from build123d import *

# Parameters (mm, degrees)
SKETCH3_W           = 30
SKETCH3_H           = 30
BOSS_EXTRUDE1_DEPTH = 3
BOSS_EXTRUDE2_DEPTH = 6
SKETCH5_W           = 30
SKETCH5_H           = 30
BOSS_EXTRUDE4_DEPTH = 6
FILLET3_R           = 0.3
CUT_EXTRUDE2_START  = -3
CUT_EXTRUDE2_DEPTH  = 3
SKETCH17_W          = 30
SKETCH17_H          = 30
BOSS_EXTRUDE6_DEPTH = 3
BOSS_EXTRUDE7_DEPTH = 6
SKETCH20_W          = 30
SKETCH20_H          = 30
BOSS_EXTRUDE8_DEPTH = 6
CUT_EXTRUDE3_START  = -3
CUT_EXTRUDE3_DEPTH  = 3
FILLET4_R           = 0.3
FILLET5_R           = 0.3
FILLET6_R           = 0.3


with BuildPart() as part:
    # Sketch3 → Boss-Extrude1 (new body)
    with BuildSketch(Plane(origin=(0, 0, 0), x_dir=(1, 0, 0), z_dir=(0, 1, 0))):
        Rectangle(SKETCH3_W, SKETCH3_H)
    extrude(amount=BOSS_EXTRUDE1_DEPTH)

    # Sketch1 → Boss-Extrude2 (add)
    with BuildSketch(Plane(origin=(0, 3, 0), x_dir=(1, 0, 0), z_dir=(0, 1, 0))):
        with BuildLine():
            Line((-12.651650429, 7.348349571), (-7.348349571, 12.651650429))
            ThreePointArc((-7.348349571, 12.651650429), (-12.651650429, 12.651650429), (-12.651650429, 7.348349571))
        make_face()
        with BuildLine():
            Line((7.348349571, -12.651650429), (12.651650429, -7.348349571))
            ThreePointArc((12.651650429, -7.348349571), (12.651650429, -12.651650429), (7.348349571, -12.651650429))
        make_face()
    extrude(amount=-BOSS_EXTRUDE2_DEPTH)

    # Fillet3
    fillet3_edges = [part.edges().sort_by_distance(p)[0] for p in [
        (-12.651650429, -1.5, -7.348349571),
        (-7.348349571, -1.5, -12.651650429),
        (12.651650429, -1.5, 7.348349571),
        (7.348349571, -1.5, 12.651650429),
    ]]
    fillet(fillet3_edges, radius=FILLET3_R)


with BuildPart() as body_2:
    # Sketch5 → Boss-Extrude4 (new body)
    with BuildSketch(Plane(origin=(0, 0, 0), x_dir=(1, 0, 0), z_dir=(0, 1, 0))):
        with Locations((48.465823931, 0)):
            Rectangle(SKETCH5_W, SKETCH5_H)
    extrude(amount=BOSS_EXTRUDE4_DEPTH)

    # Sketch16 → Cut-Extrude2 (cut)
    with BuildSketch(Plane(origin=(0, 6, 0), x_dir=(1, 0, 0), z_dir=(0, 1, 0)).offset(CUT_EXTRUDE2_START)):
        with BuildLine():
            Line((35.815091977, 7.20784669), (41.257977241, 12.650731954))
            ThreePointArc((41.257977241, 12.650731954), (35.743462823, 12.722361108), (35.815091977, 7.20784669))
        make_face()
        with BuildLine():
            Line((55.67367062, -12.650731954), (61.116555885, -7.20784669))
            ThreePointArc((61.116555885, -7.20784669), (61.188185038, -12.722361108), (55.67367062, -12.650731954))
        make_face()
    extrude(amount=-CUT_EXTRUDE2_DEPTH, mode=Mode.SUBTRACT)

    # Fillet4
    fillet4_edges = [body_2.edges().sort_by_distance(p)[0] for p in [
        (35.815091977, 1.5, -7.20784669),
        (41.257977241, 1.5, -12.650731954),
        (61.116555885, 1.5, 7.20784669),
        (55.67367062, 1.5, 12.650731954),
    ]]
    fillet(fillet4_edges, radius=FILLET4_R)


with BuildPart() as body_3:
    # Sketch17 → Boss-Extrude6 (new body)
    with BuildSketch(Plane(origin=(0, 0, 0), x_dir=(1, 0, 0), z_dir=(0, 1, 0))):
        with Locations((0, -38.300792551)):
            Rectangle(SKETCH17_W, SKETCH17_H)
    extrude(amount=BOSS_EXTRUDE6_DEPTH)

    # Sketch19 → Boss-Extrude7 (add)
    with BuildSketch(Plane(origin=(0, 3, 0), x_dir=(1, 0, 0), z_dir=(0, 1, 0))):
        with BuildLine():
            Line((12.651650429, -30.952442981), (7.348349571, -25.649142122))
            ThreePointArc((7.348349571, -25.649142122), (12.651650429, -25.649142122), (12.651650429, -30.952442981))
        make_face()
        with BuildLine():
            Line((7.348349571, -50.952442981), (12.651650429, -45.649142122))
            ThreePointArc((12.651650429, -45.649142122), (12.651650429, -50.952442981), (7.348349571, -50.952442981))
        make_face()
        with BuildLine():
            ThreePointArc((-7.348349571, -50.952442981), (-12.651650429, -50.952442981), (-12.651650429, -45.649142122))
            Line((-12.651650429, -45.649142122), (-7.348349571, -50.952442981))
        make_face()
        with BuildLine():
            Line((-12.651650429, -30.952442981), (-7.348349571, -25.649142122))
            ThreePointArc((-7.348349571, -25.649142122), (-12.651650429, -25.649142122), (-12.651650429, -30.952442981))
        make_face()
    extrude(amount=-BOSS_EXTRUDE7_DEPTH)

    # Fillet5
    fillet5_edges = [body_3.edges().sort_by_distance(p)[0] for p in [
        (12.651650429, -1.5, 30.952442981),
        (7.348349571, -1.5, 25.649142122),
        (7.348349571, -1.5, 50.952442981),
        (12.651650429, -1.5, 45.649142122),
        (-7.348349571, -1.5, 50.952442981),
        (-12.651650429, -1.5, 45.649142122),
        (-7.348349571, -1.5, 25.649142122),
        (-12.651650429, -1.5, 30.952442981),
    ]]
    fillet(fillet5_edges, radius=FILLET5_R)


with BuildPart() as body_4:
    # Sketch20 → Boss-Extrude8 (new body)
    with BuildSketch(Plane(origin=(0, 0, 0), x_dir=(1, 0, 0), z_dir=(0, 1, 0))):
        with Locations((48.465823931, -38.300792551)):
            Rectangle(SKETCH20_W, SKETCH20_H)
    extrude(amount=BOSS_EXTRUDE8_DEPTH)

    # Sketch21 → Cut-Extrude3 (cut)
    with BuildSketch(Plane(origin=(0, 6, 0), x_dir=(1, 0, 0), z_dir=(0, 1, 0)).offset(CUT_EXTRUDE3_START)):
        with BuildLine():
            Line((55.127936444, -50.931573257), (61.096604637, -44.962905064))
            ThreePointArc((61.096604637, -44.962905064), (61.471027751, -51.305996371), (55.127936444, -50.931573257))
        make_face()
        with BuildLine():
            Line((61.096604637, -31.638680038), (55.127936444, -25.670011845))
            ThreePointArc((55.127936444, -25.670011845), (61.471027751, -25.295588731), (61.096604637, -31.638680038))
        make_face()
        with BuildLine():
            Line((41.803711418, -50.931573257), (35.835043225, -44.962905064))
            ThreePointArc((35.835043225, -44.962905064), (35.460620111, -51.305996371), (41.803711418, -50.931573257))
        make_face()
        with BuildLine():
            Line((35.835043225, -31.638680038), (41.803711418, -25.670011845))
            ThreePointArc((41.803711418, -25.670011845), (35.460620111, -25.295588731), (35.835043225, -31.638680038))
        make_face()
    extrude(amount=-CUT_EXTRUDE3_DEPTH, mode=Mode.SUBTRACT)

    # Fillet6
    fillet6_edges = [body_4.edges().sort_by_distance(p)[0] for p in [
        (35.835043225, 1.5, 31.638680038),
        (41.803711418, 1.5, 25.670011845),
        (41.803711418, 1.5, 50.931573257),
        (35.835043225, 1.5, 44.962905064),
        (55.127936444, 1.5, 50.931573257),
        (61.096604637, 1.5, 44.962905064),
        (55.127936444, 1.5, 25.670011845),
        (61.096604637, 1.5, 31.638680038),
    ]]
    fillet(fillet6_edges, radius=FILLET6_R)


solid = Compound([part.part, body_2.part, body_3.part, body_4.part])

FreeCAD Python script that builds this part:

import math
import FreeCAD as App
import Part
import Sketcher

V = App.Vector
Q = App.Units.Quantity


def edges_at(feature, points):
    """Names of the edges that pass closest to the given points."""
    edges = feature.Shape.Edges
    near = lambda p: min(range(len(edges)), key=lambda i: edges[i].distToShape(Part.Vertex(*p))[0])
    return sorted({f"Edge{near(p) + 1}" for p in points})


def add_polygon(sketch, points):
    """Adds a closed chain of lines whose ends are joined by coincident constraints."""
    first, n = sketch.GeometryCount, len(points)
    for a, b in zip(points, points[1:] + points[:1]):
        sketch.addGeometry(Part.LineSegment(App.Vector(*a, 0), App.Vector(*b, 0)), False)
    for i in range(n):
        sketch.addConstraint(Sketcher.Constraint("Coincident", first + i, 2, first + (i + 1) % n, 1))

doc = App.newDocument("Part")
body = doc.addObject("PartDesign::Body", "Body")

# Sketch on XZ plane
sketch1 = body.newObject("Sketcher::SketchObject", "Sketch")
sketch1.AttachmentSupport = (doc.getObject("XZ_Plane"), [""])
sketch1.MapMode = "FlatFace"
add_polygon(sketch1, [(-15, -15), (-15, 15), (15, 15), (15, -15)])  # lines 0-3
sketch1.addConstraint([
    Sketcher.Constraint("Vertical", 0),
    Sketcher.Constraint("Horizontal", 1),
    Sketcher.Constraint("Vertical", 2),
    Sketcher.Constraint("Horizontal", 3),
    Sketcher.Constraint("Symmetric", 0, 2, 2, 2, -1, 1),
    Sketcher.Constraint("Equal", 3, 0),
    Sketcher.Constraint("DistanceX", 1, 1, 1, 2, 30.0),
])
pad1 = body.newObject("PartDesign::Pad", "Pad")
pad1.Profile = sketch1
pad1.Length = 3
pad1.Reversed = True

# Sketch on XZ plane
sketch2 = body.newObject("Sketcher::SketchObject", "Sketch001")
sketch2.AttachmentSupport = (doc.getObject("XZ_Plane"), [""])
sketch2.MapMode = "FlatFace"
sketch2.AttachmentOffset = App.Placement(V(0, 0, -3), App.Rotation())
sketch2.addGeometry([
    Part.LineSegment(V(-12.7, -7.3, 0), V(-7.3, -12.7, 0)),
    Part.ArcOfCircle(Part.Circle(V(-10, -10, 0), V(0, 0, 1), 3.7), math.radians(135), math.radians(315)),
    Part.LineSegment(V(12.7, 7.3, 0), V(7.3, 12.7, 0)),
    Part.ArcOfCircle(Part.Circle(V(10, 10, 0), V(0, 0, 1), 3.7), math.radians(-45), math.radians(135)),
], False)
sketch2.addConstraint([
    Sketcher.Constraint("Coincident", 0, 1, 1, 1),
    Sketcher.Constraint("Coincident", 1, 2, 0, 2),
    Sketcher.Constraint("Coincident", 2, 1, 3, 1),
    Sketcher.Constraint("Coincident", 3, 2, 2, 2),
    Sketcher.Constraint("Equal", 1, 3),
    Sketcher.Constraint("Symmetric", 1, 3, 3, 3, -1, 1),
    Sketcher.Constraint("Parallel", 0, 2),
    Sketcher.Constraint("Angle", 0, Q("-45 deg")),
    Sketcher.Constraint("Radius", 1, 3.75),
    Sketcher.Constraint("DistanceX", 1, 3, -1, 1, 10.0),
    Sketcher.Constraint("DistanceY", 1, 3, -1, 1, 10.0),
    Sketcher.Constraint("DistanceX", 1, 2, 2, 1, 20.0),
    Sketcher.Constraint("DistanceX", 0, 1, -1, 1, 12.65165),
])
pad2 = body.newObject("PartDesign::Pad", "Pad001")
pad2.Profile = sketch2
pad2.Length = 6
doc.recompute()

fillet = body.newObject("PartDesign::Fillet", "Fillet")
fillet.Base = (pad2, edges_at(pad2, [
    (-12.652, -1.5, -7.348),
    (-7.348, -1.5, -12.652),
    (12.652, -1.5, 7.348),
    (7.348, -1.5, 12.652),
]))
fillet.Radius = 0.3
body2 = doc.addObject("PartDesign::Body", "Body001")

# Sketch on XZ plane
sketch3 = body2.newObject("Sketcher::SketchObject", "Sketch002")
sketch3.AttachmentSupport = (doc.getObject("XZ_Plane001"), [""])
sketch3.MapMode = "FlatFace"
add_polygon(sketch3, [(33, -15), (33, 15), (63, 15), (63, -15)])  # lines 0-3
sketch3.addConstraint([
    Sketcher.Constraint("Vertical", 0),
    Sketcher.Constraint("Horizontal", 1),
    Sketcher.Constraint("Vertical", 2),
    Sketcher.Constraint("Horizontal", 3),
    Sketcher.Constraint("Equal", 3, 0),
    Sketcher.Constraint("DistanceX", 1, 1, 1, 2, 30.0),
    Sketcher.Constraint("DistanceY", -1, 1, 0, 2, 15.0),
    Sketcher.Constraint("DistanceX", -1, 1, 0, 2, 33.465824),
])
pad3 = body2.newObject("PartDesign::Pad", "Pad002")
pad3.Profile = sketch3
pad3.Length = 6
pad3.Reversed = True

# Sketch on XZ plane
sketch4 = body2.newObject("Sketcher::SketchObject", "Sketch003")
sketch4.AttachmentSupport = (doc.getObject("XZ_Plane001"), [""])
sketch4.MapMode = "FlatFace"
sketch4.AttachmentOffset = App.Placement(V(0, 0, -3), App.Rotation())
sketch4.addGeometry([
    Part.LineSegment(V(35.8, -7.2, 0), V(41.3, -12.7, 0)),
    Part.ArcOfCircle(Part.Circle(V(38.5, -10, 0), V(0, 0, 1), 3.9), math.radians(134), math.radians(316)),
    Part.LineSegment(V(61.1, 7.2, 0), V(55.7, 12.7, 0)),
    Part.ArcOfCircle(Part.Circle(V(58.5, 10, 0), V(0, 0, 1), 3.9), math.radians(-46), math.radians(136)),
], False)
sketch4.addConstraint([
    Sketcher.Constraint("Coincident", 0, 1, 1, 1),
    Sketcher.Constraint("Coincident", 1, 2, 0, 2),
    Sketcher.Constraint("Coincident", 2, 1, 3, 1),
    Sketcher.Constraint("Coincident", 3, 2, 2, 2),
    Sketcher.Constraint("Equal", 1, 3),
    Sketcher.Constraint("Parallel", 0, 2),
    Sketcher.Constraint("Equal", 0, 2),
    Sketcher.Constraint("Angle", 0, Q("-45 deg")),
    Sketcher.Constraint("Radius", 1, 3.85),
    Sketcher.Constraint("DistanceY", 1, 3, -1, 1, 10.0),
    Sketcher.Constraint("DistanceY", -1, 1, 3, 3, 10.0),
    Sketcher.Constraint("DistanceX", 1, 3, 3, 3, 20.0),
    Sketcher.Constraint("DistanceX", -1, 1, 0, 1, 35.815092),
    Sketcher.Constraint("DistanceY", 1, 2, -1, 1, 12.650732),
])
pocket1 = body2.newObject("PartDesign::Pocket", "Pocket")
pocket1.Profile = sketch4
pocket1.Length = 3
pocket1.Reversed = True
doc.recompute()

fillet2 = body2.newObject("PartDesign::Fillet", "Fillet001")
fillet2.Base = (pocket1, edges_at(pocket1, [
    (35.815, 1.5, -7.208),
    (41.258, 1.5, -12.651),
    (61.117, 1.5, 7.208),
    (55.674, 1.5, 12.651),
]))
fillet2.Radius = 0.3
body3 = doc.addObject("PartDesign::Body", "Body002")

# Sketch on XZ plane
sketch5 = body3.newObject("Sketcher::SketchObject", "Sketch004")
sketch5.AttachmentSupport = (doc.getObject("XZ_Plane002"), [""])
sketch5.MapMode = "FlatFace"
add_polygon(sketch5, [(-15, 23), (-15, 53), (15, 53), (15, 23)])  # lines 0-3
sketch5.addConstraint([
    Sketcher.Constraint("Vertical", 0),
    Sketcher.Constraint("Horizontal", 1),
    Sketcher.Constraint("Vertical", 2),
    Sketcher.Constraint("Horizontal", 3),
    Sketcher.Constraint("Equal", 3, 0),
    Sketcher.Constraint("DistanceX", 1, 1, 1, 2, 30.0),
    Sketcher.Constraint("DistanceX", 0, 2, -1, 1, 15.0),
    Sketcher.Constraint("DistanceY", -1, 1, 0, 2, 53.300793),
])
pad4 = body3.newObject("PartDesign::Pad", "Pad003")
pad4.Profile = sketch5
pad4.Length = 3
pad4.Reversed = True

# Sketch on XZ plane
sketch6 = body3.newObject("Sketcher::SketchObject", "Sketch005")
sketch6.AttachmentSupport = (doc.getObject("XZ_Plane002"), [""])
sketch6.MapMode = "FlatFace"
sketch6.AttachmentOffset = App.Placement(V(0, 0, -3), App.Rotation())
sketch6.addGeometry([
    Part.LineSegment(V(7.3, 25.6, 0), V(12.7, 31, 0)),  # 0
    Part.ArcOfCircle(Part.Circle(V(10, 28.3, 0), V(0, 0, 1), 3.8), math.radians(-135), math.radians(45)),  # 1
    Part.LineSegment(V(12.7, 45.6, 0), V(7.3, 51, 0)),  # 2
    Part.ArcOfCircle(Part.Circle(V(10, 48.3, 0), V(0, 0, 1), 3.8), math.radians(-45), math.radians(135)),  # 3
    Part.ArcOfCircle(Part.Circle(V(-10, 48.3, 0), V(0, 0, 1), 3.8), math.radians(45), math.radians(225)),  # 4
    Part.LineSegment(V(-7.3, 51, 0), V(-12.7, 45.6, 0)),  # 5
    Part.LineSegment(V(-12.7, 31, 0), V(-7.3, 25.6, 0)),  # 6
    Part.ArcOfCircle(Part.Circle(V(-10, 28.3, 0), V(0, 0, 1), 3.8), math.radians(135), math.radians(315)),  # 7
], False)
sketch6.addConstraint([
    Sketcher.Constraint("Coincident", 0, 1, 1, 1),
    Sketcher.Constraint("Coincident", 1, 2, 0, 2),
    Sketcher.Constraint("Coincident", 2, 1, 3, 1),
    Sketcher.Constraint("Coincident", 3, 2, 2, 2),
    Sketcher.Constraint("Coincident", 4, 1, 5, 1),
    Sketcher.Constraint("Coincident", 5, 2, 4, 2),
    Sketcher.Constraint("Coincident", 6, 1, 7, 1),
    Sketcher.Constraint("Coincident", 7, 2, 6, 2),
    Sketcher.Constraint("Equal", 1, 3),
    Sketcher.Constraint("Equal", 3, 4),
    Sketcher.Constraint("Equal", 4, 7),
    Sketcher.Constraint("Symmetric", 3, 3, 4, 3, -2),
    Sketcher.Constraint("Symmetric", 1, 3, 7, 3, -2),
    Sketcher.Constraint("Perpendicular", 0, 2),
    Sketcher.Constraint("Perpendicular", 2, 5),
    Sketcher.Constraint("Perpendicular", 5, 6),
    Sketcher.Constraint("Horizontal", 3, 2, 4, 1),
    Sketcher.Constraint("Horizontal", 2, 1, 5, 2),
    Sketcher.Constraint("Horizontal", 1, 2, 6, 1),
    Sketcher.Constraint("Vertical", 1, 3, 3, 3),
    Sketcher.Constraint("Vertical", 1, 2, 2, 1),
    Sketcher.Constraint("Radius", 1, 3.75),
    Sketcher.Constraint("DistanceX", -1, 1, 1, 3, 10.0),
    Sketcher.Constraint("DistanceY", 1, 3, 3, 3, 20.0),
    Sketcher.Constraint("DistanceY", 0, 1, 2, 1, 20.0),
    Sketcher.Constraint("DistanceY", -1, 1, 1, 3, 28.300793),
])
pad5 = body3.newObject("PartDesign::Pad", "Pad004")
pad5.Profile = sketch6
pad5.Length = 6
doc.recompute()

fillet3 = body3.newObject("PartDesign::Fillet", "Fillet002")
fillet3.Base = (pad5, edges_at(pad5, [
    (12.652, -1.5, 30.952),
    (7.348, -1.5, 25.649),
    (7.348, -1.5, 50.952),
    (12.652, -1.5, 45.649),
    (-7.348, -1.5, 50.952),
    (-12.652, -1.5, 45.649),
    (-7.348, -1.5, 25.649),
    (-12.652, -1.5, 30.952),
]))
fillet3.Radius = 0.3
body4 = doc.addObject("PartDesign::Body", "Body003")

# Sketch on XZ plane
sketch7 = body4.newObject("Sketcher::SketchObject", "Sketch006")
sketch7.AttachmentSupport = (doc.getObject("XZ_Plane003"), [""])
sketch7.MapMode = "FlatFace"
add_polygon(sketch7, [(33, 23), (33, 53), (63, 53), (63, 23)])  # lines 0-3
sketch7.addConstraint([
    Sketcher.Constraint("Vertical", 0),
    Sketcher.Constraint("Horizontal", 1),
    Sketcher.Constraint("Vertical", 2),
    Sketcher.Constraint("Horizontal", 3),
    Sketcher.Constraint("Equal", 3, 0),
    Sketcher.Constraint("DistanceX", 1, 1, 1, 2, 30.0),
    Sketcher.Constraint("DistanceX", -1, 1, 0, 2, 33.465824),
    Sketcher.Constraint("DistanceY", -1, 1, 0, 2, 53.300793),
])
pad6 = body4.newObject("PartDesign::Pad", "Pad005")
pad6.Profile = sketch7
pad6.Length = 6
pad6.Reversed = True

# Sketch on XZ plane
sketch8 = body4.newObject("Sketcher::SketchObject", "Sketch007")
sketch8.AttachmentSupport = (doc.getObject("XZ_Plane003"), [""])
sketch8.MapMode = "FlatFace"
sketch8.AttachmentOffset = App.Placement(V(0, 0, -3), App.Rotation())
sketch8.addGeometry([
    Part.LineSegment(V(61.1, 45, 0), V(55.1, 50.9, 0)),  # 0
    Part.ArcOfCircle(Part.Circle(V(58.5, 48.3, 0), V(0, 0, 1), 4.2), math.radians(-52), math.radians(142)),  # 1
    Part.LineSegment(V(55.1, 25.7, 0), V(61.1, 31.6, 0)),  # 2
    Part.ArcOfCircle(Part.Circle(V(58.5, 28.3, 0), V(0, 0, 1), 4.2), math.radians(-142), math.radians(52)),  # 3
    Part.LineSegment(V(41.8, 50.9, 0), V(35.8, 45, 0)),  # 4
    Part.ArcOfCircle(Part.Circle(V(38.5, 48.3, 0), V(0, 0, 1), 4.2), math.radians(38), math.radians(232)),  # 5
    Part.LineSegment(V(35.8, 31.6, 0), V(41.8, 25.7, 0)),  # 6
    Part.ArcOfCircle(Part.Circle(V(38.5, 28.3, 0), V(0, 0, 1), 4.2), math.radians(128), math.radians(322)),  # 7
], False)
sketch8.addConstraint([
    Sketcher.Constraint("Coincident", 0, 1, 1, 1),
    Sketcher.Constraint("Coincident", 1, 2, 0, 2),
    Sketcher.Constraint("Coincident", 2, 1, 3, 1),
    Sketcher.Constraint("Coincident", 3, 2, 2, 2),
    Sketcher.Constraint("Coincident", 4, 1, 5, 1),
    Sketcher.Constraint("Coincident", 5, 2, 4, 2),
    Sketcher.Constraint("Coincident", 6, 1, 7, 1),
    Sketcher.Constraint("Coincident", 7, 2, 6, 2),
    Sketcher.Constraint("Equal", 1, 3),
    Sketcher.Constraint("Equal", 3, 5),
    Sketcher.Constraint("Equal", 5, 7),
    Sketcher.Constraint("Perpendicular", 0, 2),
    Sketcher.Constraint("Parallel", 2, 4),
    Sketcher.Constraint("Perpendicular", 4, 6),
    Sketcher.Constraint("Horizontal", 1, 3, 5, 3),
    Sketcher.Constraint("Horizontal", 3, 3, 7, 3),
    Sketcher.Constraint("Horizontal", 1, 2, 4, 1),
    Sketcher.Constraint("Horizontal", 0, 1, 5, 2),
    Sketcher.Constraint("Horizontal", 3, 2, 6, 1),
    Sketcher.Constraint("Vertical", 1, 3, 3, 3),
    Sketcher.Constraint("Vertical", 5, 3, 7, 3),
    Sketcher.Constraint("Vertical", 1, 2, 2, 1),
    Sketcher.Constraint("Radius", 1, 4.25),
    Sketcher.Constraint("DistanceY", 3, 3, 1, 3, 20.0),
    Sketcher.Constraint("DistanceX", 5, 3, 1, 3, 20.0),
    Sketcher.Constraint("Distance", 0, 8.440972),
    Sketcher.Constraint("DistanceY", -1, 1, 2, 1, 25.670012),
    Sketcher.Constraint("DistanceX", -1, 1, 4, 1, 41.803711),
])
pocket2 = body4.newObject("PartDesign::Pocket", "Pocket001")
pocket2.Profile = sketch8
pocket2.Length = 3
pocket2.Reversed = True
doc.recompute()

fillet4 = body4.newObject("PartDesign::Fillet", "Fillet003")
fillet4.Base = (pocket2, edges_at(pocket2, [
    (35.835, 1.5, 31.639),
    (41.804, 1.5, 25.67),
    (41.804, 1.5, 50.932),
    (35.835, 1.5, 44.963),
    (55.128, 1.5, 50.932),
    (61.097, 1.5, 44.963),
    (55.128, 1.5, 25.67),
    (61.097, 1.5, 31.639),
]))
fillet4.Radius = 0.3

doc.recompute()
